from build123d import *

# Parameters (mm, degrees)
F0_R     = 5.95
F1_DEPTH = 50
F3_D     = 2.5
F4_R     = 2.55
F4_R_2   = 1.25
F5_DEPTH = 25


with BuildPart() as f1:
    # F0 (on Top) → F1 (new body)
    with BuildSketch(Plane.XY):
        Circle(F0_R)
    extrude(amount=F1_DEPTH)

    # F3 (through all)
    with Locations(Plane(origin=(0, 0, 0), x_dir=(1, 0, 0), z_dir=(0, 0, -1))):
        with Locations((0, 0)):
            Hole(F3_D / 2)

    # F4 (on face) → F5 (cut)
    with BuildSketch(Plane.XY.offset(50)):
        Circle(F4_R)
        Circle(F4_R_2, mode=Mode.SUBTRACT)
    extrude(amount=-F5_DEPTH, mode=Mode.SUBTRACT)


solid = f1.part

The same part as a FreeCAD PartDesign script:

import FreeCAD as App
import Part
import Sketcher

V = App.Vector
Q = App.Units.Quantity

doc = App.newDocument("Part")
body = doc.addObject("PartDesign::Body", "Body")

# Sketch on XY plane
sketch1 = body.newObject("Sketcher::SketchObject", "Sketch")
sketch1.AttachmentSupport = (doc.getObject("XY_Plane"), [""])
sketch1.MapMode = "FlatFace"
sketch1.addGeometry(Part.Circle(V(0, 0, 0), V(0, 0, 1), 6), False)
sketch1.addConstraint([
    Sketcher.Constraint("Coincident", 0, 3, -1, 1),
    Sketcher.Constraint("Diameter", 0, Q("11.9 mm")),
])
pad1 = body.newObject("PartDesign::Pad", "Pad")
pad1.Profile = sketch1
pad1.Length = 50

# Sketch on XY plane
sketch2 = body.newObject("Sketcher::SketchObject", "Sketch001")
sketch2.AttachmentSupport = (doc.getObject("XY_Plane"), [""])
sketch2.MapMode = "FlatFace"
sketch2.addGeometry(Part.Circle(V(0, 0, 0), V(0, 0, 1), 1.2), False)
sketch2.addConstraint([
    Sketcher.Constraint("Coincident", 0, 3, -1, 1),
    Sketcher.Constraint("Diameter", 0, Q("2.5 mm")),
])
doc.recompute()
hole = body.newObject("PartDesign::Hole", "Hole")
hole.Profile = sketch2
hole.ThreadType = "None"
hole.Diameter = 2.5
hole.DepthType = "ThroughAll"
hole.Reversed = True

# Sketch on XY plane
sketch3 = body.newObject("Sketcher::SketchObject", "Sketch002")
sketch3.AttachmentSupport = (doc.getObject("XY_Plane"), [""])
sketch3.MapMode = "FlatFace"
sketch3.AttachmentOffset = App.Placement(V(0, 0, 50), App.Rotation())
sketch3.addGeometry([
    Part.Circle(V(0, 0, 0), V(0, 0, 1), 2.5),
    Part.Circle(V(0, 0, 0), V(0, 0, 1), 1.2),
], False)
sketch3.addConstraint([
    Sketcher.Constraint("Coincident", 0, 3, -1, 1),
    Sketcher.Constraint("Coincident", 1, 3, -1, 1),
    Sketcher.Constraint("Diameter", 0, Q("5.1 mm")),
    Sketcher.Constraint("Diameter", 1, Q("2.5 mm")),
])
pocket1 = body.newObject("PartDesign::Pocket", "Pocket")
pocket1.Profile = sketch3
pocket1.Length = 25

doc.recompute()
